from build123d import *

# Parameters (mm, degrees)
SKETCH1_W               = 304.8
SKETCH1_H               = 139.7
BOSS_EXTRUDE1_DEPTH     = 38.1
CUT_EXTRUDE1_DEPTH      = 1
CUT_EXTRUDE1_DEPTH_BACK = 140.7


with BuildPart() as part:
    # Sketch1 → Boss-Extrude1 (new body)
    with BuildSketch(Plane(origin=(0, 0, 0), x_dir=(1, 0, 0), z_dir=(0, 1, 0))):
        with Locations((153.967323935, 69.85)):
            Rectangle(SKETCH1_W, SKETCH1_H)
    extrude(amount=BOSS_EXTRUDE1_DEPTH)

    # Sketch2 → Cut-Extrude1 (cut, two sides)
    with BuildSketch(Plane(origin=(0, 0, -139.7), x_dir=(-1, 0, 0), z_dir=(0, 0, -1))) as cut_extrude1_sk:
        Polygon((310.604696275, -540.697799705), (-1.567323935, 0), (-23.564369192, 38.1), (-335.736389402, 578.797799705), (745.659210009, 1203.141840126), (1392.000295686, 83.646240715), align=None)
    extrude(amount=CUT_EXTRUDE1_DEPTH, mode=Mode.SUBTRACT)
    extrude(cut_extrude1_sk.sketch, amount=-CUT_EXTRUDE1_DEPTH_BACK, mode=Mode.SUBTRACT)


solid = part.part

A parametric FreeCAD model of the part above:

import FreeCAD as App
import Part
import Sketcher

V = App.Vector
Q = App.Units.Quantity

doc = App.newDocument("Part")
params = doc.addObject("Spreadsheet::Sheet", "Params")
for row, (alias, value) in enumerate([
    ("sketch1_width", "12 in"),
    ("sketch1_height", "5.5 in"),
    ("pad1_length", "1.5 in"),
], start=1):
    params.set(f"A{row}", alias)
    params.set(f"B{row}", "=" + value)
    params.setAlias(f"B{row}", alias)

body = doc.addObject("PartDesign::Body", "Body")

# Sketch on XZ plane
sketch1 = doc.addObject("Sketcher::SketchObject", "Sketch")
body.addObject(sketch1)
sketch1.AttachmentSupport = (doc.XZ_Plane, [""])
sketch1.MapMode = "FlatFace"
sketch1.addGeometry([
    Part.LineSegment(V(2, -140, 0), V(2, 0, 0)),
    Part.LineSegment(V(2, 0, 0), V(306, 0, 0)),
    Part.LineSegment(V(306, 0, 0), V(306, -140, 0)),
    Part.LineSegment(V(306, -140, 0), V(2, -140, 0)),
], False)
sketch1.addConstraint([
    Sketcher.Constraint("Coincident", 0, 2, 1, 1),
    Sketcher.Constraint("Coincident", 1, 2, 2, 1),
    Sketcher.Constraint("Coincident", 2, 2, 3, 1),
    Sketcher.Constraint("Coincident", 3, 2, 0, 1),
    Sketcher.Constraint("Vertical", 0),
    Sketcher.Constraint("Horizontal", 1),
    Sketcher.Constraint("Vertical", 2),
    Sketcher.Constraint("Horizontal", 3),
    Sketcher.Constraint("PointOnObject", 0, 2, -1),
    Sketcher.Constraint("DistanceX", 1, 1, 1, 2, Q("12 in")),
    Sketcher.Constraint("DistanceY", 0, 1, 0, 2, Q("5.5 in")),
    Sketcher.Constraint("DistanceX", -1, 1, 0, 2, Q("1.567324 mm")),
])
sketch1.setExpression("Constraints[9]", "Params.sketch1_width")
sketch1.setExpression("Constraints[10]", "Params.sketch1_height")
pad1 = doc.addObject("PartDesign::Pad", "Pad")
body.addObject(pad1)
pad1.Profile = sketch1
pad1.setExpression("Length", "Params.pad1_length")
pad1.Reversed = True

# Sketch on XY plane
sketch2 = doc.addObject("Sketcher::SketchObject", "Sketch001")
body.addObject(sketch2)
sketch2.AttachmentSupport = (doc.XY_Plane, [""])
sketch2.MapMode = "FlatFace"
sketch2.AttachmentOffset = App.Placement(V(0, 0, -5.5 * 25.4), App.Rotation())
sketch2.addGeometry([
    Part.LineSegment(V(2, 0, 0), V(-311, -541, 0)),  # 0
    Part.LineSegment(V(-311, -541, 0), V(-1392, 84, 0)),  # 1
    Part.LineSegment(V(-1392, 84, 0), V(-746, 1203, 0)),  # 2
    Part.LineSegment(V(-746, 1203, 0), V(336, 579, 0)),  # 3
    Part.LineSegment(V(336, 579, 0), V(24, 38, 0)),  # 4
    Part.LineSegment(V(24, 38, 0), V(2, 0, 0)),  # 5
], False)
sketch2.addConstraint([
    Sketcher.Constraint("Coincident", 0, 2, 1, 1),
    Sketcher.Constraint("Coincident", 1, 2, 2, 1),
    Sketcher.Constraint("Coincident", 2, 2, 3, 1),
    Sketcher.Constraint("Coincident", 3, 2, 4, 1),
    Sketcher.Constraint("Coincident", 4, 2, 5, 1),
    Sketcher.Constraint("Coincident", 5, 2, 0, 1),
    Sketcher.Constraint("PointOnObject", 5, 2, -1),
    Sketcher.Constraint("Perpendicular", 0, 1),
    Sketcher.Constraint("Perpendicular", 1, 2),
    Sketcher.Constraint("Perpendicular", 2, 3),
    Sketcher.Constraint("Perpendicular", 3, 4),
    Sketcher.Constraint("Parallel", 4, 5),
    Sketcher.Constraint("Equal", 0, 4),
    Sketcher.Constraint("Angle", 0, Q("-120 deg")),
    Sketcher.Constraint("DistanceY", -1, 1, 4, 2, Q("1.5 in")),
    Sketcher.Constraint("DistanceY", 0, 2, -1, 1, Q("540.6978 mm")),
    Sketcher.Constraint("DistanceX", 1, 2, 0, 2, Q("1081.395599 mm")),
    Sketcher.Constraint("DistanceX", 2, 2, -1, 1, Q("745.65921 mm")),
])
pocket1 = doc.addObject("PartDesign::Pocket", "Pocket")
body.addObject(pocket1)
pocket1.Profile = sketch2
pocket1.Type = "ThroughAll"
pocket1.Midplane = True

doc.recompute()
